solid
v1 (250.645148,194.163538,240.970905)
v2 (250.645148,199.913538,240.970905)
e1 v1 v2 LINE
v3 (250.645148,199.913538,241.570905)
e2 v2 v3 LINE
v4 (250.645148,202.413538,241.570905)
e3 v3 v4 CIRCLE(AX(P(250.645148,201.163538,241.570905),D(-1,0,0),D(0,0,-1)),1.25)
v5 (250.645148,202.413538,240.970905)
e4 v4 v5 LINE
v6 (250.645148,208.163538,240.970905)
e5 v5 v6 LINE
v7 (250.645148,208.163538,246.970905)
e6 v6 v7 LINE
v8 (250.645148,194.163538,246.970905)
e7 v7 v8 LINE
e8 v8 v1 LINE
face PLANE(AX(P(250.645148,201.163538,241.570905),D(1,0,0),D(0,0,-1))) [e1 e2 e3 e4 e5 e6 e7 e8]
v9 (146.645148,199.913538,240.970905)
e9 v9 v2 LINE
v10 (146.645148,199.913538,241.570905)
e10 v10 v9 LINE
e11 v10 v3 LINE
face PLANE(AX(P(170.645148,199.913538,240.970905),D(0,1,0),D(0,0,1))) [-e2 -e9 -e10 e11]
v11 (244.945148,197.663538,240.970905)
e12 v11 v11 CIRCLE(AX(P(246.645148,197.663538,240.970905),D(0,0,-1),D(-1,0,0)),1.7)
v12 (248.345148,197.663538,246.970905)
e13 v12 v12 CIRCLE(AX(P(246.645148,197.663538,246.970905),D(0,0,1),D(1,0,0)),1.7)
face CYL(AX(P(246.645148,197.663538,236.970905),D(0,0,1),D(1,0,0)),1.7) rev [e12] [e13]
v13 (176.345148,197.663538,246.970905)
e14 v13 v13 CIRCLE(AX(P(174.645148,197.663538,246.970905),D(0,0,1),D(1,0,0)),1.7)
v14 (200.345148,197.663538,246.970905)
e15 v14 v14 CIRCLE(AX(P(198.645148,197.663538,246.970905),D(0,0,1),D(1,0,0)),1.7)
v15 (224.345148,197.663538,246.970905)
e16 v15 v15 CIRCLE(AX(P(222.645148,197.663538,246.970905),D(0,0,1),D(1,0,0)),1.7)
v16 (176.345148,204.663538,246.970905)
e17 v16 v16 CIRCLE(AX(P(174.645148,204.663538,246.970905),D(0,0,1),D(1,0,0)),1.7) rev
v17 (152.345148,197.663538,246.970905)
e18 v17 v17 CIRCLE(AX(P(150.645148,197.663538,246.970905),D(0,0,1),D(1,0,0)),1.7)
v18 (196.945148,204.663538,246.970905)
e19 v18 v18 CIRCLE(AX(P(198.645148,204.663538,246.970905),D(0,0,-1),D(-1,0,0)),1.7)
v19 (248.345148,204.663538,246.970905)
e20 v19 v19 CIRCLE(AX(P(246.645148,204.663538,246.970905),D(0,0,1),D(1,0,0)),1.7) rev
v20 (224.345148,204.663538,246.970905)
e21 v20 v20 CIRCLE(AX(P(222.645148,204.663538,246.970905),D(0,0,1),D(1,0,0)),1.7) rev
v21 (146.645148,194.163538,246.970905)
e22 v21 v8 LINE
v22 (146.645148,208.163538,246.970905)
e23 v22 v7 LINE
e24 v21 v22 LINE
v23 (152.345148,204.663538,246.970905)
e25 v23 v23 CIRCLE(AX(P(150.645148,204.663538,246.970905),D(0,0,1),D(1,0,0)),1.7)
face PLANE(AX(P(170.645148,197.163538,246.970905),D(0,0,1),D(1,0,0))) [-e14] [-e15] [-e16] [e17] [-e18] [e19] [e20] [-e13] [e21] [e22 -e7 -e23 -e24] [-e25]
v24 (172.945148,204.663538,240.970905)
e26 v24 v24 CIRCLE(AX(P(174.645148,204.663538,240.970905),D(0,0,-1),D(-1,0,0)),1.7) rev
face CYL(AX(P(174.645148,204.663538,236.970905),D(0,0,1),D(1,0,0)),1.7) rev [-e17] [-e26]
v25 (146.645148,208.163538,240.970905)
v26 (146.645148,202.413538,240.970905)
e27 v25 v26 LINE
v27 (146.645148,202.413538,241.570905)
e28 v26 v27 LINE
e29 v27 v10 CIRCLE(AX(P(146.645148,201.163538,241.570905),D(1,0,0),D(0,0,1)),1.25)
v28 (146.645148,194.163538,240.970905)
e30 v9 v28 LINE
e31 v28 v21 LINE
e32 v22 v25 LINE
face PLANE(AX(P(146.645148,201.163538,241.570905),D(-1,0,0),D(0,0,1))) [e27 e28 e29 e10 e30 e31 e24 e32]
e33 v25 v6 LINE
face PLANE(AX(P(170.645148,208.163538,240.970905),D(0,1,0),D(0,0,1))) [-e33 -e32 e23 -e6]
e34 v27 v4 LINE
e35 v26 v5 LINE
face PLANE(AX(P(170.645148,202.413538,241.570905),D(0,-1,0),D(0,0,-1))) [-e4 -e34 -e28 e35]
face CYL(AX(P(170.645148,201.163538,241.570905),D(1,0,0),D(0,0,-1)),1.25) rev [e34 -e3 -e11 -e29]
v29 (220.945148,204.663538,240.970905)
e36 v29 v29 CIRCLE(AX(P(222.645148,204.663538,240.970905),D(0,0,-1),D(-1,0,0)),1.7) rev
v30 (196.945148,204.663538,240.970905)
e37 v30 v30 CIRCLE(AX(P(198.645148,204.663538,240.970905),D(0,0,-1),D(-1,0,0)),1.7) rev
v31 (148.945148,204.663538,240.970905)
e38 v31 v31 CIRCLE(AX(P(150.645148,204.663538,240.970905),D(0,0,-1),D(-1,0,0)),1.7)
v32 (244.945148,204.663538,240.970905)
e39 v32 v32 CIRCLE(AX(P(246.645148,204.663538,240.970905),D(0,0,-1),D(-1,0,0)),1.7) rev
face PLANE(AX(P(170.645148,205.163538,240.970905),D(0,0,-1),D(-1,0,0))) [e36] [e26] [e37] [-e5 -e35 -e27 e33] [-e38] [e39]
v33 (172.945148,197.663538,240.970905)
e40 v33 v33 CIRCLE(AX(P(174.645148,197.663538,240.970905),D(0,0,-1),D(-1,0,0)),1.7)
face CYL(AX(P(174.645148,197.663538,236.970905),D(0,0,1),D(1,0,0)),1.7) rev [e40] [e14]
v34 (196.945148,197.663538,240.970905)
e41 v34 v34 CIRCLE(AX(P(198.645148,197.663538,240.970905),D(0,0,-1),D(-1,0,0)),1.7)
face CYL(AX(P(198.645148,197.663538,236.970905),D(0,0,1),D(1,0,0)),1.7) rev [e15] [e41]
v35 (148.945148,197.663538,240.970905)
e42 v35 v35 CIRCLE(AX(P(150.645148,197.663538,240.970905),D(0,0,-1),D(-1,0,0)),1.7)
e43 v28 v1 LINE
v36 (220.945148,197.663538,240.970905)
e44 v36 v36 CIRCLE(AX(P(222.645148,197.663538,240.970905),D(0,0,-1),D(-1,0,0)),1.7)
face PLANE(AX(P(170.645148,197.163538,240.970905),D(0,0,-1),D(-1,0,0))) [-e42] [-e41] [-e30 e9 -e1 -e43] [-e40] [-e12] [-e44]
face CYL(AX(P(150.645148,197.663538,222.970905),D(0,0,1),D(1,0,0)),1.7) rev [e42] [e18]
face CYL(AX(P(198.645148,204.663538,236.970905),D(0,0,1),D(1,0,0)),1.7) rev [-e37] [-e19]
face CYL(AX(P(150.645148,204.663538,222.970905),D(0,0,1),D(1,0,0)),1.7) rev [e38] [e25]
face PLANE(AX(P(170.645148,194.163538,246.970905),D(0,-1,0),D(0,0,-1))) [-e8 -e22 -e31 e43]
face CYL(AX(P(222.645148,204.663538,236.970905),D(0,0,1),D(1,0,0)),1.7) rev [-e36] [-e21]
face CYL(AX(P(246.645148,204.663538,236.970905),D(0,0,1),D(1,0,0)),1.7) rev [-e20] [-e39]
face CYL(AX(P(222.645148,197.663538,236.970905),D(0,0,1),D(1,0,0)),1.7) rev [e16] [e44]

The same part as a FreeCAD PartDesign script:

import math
import FreeCAD as App
import Part
import Sketcher

doc = App.newDocument("Part")
body = doc.addObject("PartDesign::Body", "Body")

sketch1 = body.newObject("Sketcher::SketchObject", "Sketch")
sketch1.AttachmentSupport = (doc.getObject("YZ_Plane"), [""])
sketch1.MapMode = "FlatFace"
sketch1.AttachmentOffset = App.Placement(App.Vector(0, 0, 190.645148), App.Rotation())
sketch1.addGeometry([
    Part.LineSegment(App.Vector(208.2, 247, 0), App.Vector(194.2, 247, 0)),
    Part.LineSegment(App.Vector(194.2, 247, 0), App.Vector(194.2, 241, 0)),
    Part.LineSegment(App.Vector(194.2, 241, 0), App.Vector(199.9, 241, 0)),
    Part.LineSegment(App.Vector(199.9, 241, 0), App.Vector(199.9, 241.6, 0)),
    Part.ArcOfCircle(Part.Circle(App.Vector(201.2, 241.6, 0), App.Vector(0, 0, 1), 1.2), math.radians(0), math.radians(180)),
    Part.LineSegment(App.Vector(202.4, 241.6, 0), App.Vector(202.4, 241, 0)),
    Part.LineSegment(App.Vector(202.4, 241, 0), App.Vector(208.2, 241, 0)),
    Part.LineSegment(App.Vector(208.2, 241, 0), App.Vector(208.2, 247, 0)),
], False)
sketch1.addConstraint([
    Sketcher.Constraint("Coincident", 0, 2, 1, 1),
    Sketcher.Constraint("Coincident", 1, 2, 2, 1),
    Sketcher.Constraint("Coincident", 2, 2, 3, 1),
    Sketcher.Constraint("Tangent", 3, 2, 4, 2),
    Sketcher.Constraint("Tangent", 4, 1, 5, 1),
    Sketcher.Constraint("Coincident", 5, 2, 6, 1),
    Sketcher.Constraint("Coincident", 6, 2, 7, 1),
    Sketcher.Constraint("Coincident", 7, 2, 0, 1),
    Sketcher.Constraint("Horizontal", 0),
    Sketcher.Constraint("Vertical", 1),
    Sketcher.Constraint("Horizontal", 2),
    Sketcher.Constraint("Vertical", 3),
    Sketcher.Constraint("Vertical", 5),
    Sketcher.Constraint("Horizontal", 6),
    Sketcher.Constraint("Vertical", 7),
    Sketcher.Constraint("Horizontal", 2, 2, 5, 2),
    Sketcher.Constraint("Equal", 2, 6),
    Sketcher.Constraint("DistanceX", 0, 2, 0, 1, 14.0),
    Sketcher.Constraint("DistanceY", 1, 2, 1, 1, 6.0),
    Sketcher.Constraint("Radius", 4, 1.25),
    Sketcher.Constraint("DistanceY", 3, 1, 3, 2, 0.6),
    Sketcher.Constraint("DistanceX", -1, 1, 4, 3, 201.163538),
    Sketcher.Constraint("DistanceY", -1, 1, 4, 3, 241.570905),
])
pad1 = body.newObject("PartDesign::Pad", "Pad")
pad1.Profile = sketch1
pad1.Type = "TwoLengths"
pad1.Length = 60
pad1.Length2 = 20

sketch2 = body.newObject("Sketcher::SketchObject", "Sketch001")
sketch2.AttachmentSupport = (doc.getObject("XY_Plane"), [""])
sketch2.MapMode = "FlatFace"
sketch2.AttachmentOffset = App.Placement(App.Vector(0, 0, 246.970905), App.Rotation())
sketch2.addGeometry([
    Part.Circle(App.Vector(246.6, 197.7, 0), App.Vector(0, 0, 1), 1.7),
    Part.Circle(App.Vector(198.6, 197.7, 0), App.Vector(0, 0, 1), 1.7),
    Part.Circle(App.Vector(174.6, 197.7, 0), App.Vector(0, 0, 1), 1.7),
    Part.Circle(App.Vector(222.6, 197.7, 0), App.Vector(0, 0, 1), 1.7),
    Part.Circle(App.Vector(174.6, 204.7, 0), App.Vector(0, 0, 1), 1.7),
    Part.Circle(App.Vector(198.6, 204.7, 0), App.Vector(0, 0, 1), 1.7),
    Part.Circle(App.Vector(222.6, 204.7, 0), App.Vector(0, 0, 1), 1.7),
    Part.Circle(App.Vector(246.6, 204.7, 0), App.Vector(0, 0, 1), 1.7),
], False)
sketch2.addConstraint([
    Sketcher.Constraint("Equal", 0, 1),
    Sketcher.Constraint("Equal", 1, 2),
    Sketcher.Constraint("Equal", 2, 3),
    Sketcher.Constraint("Equal", 3, 4),
    Sketcher.Constraint("Equal", 4, 5),
    Sketcher.Constraint("Equal", 5, 6),
    Sketcher.Constraint("Equal", 6, 7),
    Sketcher.Constraint("Horizontal", 0, 3, 1, 3),
    Sketcher.Constraint("Horizontal", 1, 3, 2, 3),
    Sketcher.Constraint("Horizontal", 2, 3, 3, 3),
    Sketcher.Constraint("Horizontal", 4, 3, 5, 3),
    Sketcher.Constraint("Horizontal", 5, 3, 6, 3),
    Sketcher.Constraint("Horizontal", 6, 3, 7, 3),
    Sketcher.Constraint("Vertical", 2, 3, 4, 3),
    Sketcher.Constraint("Vertical", 1, 3, 5, 3),
    Sketcher.Constraint("Vertical", 3, 3, 6, 3),
    Sketcher.Constraint("Vertical", 0, 3, 7, 3),
    Sketcher.Constraint("Diameter", 0, 3.4),
    Sketcher.Constraint("DistanceX", 1, 3, 0, 3, 48.0),
    Sketcher.Constraint("DistanceX", 2, 3, 1, 3, 24.0),
    Sketcher.Constraint("DistanceX", 3, 3, 0, 3, 24.0),
    Sketcher.Constraint("DistanceY", 2, 3, 4, 3, 7.0),
    Sketcher.Constraint("DistanceX", -1, 1, 0, 3, 246.645148),
    Sketcher.Constraint("DistanceY", -1, 1, 0, 3, 197.663538),
])
pocket1 = body.newObject("PartDesign::Pocket", "Pocket")
pocket1.Profile = sketch2
pocket1.Length = 10

sketch3 = body.newObject("Sketcher::SketchObject", "Sketch002")
sketch3.AttachmentSupport = (doc.getObject("YZ_Plane"), [""])
sketch3.MapMode = "FlatFace"
sketch3.AttachmentOffset = App.Placement(App.Vector(0, 0, 146.645148), App.Rotation())
sketch3.addGeometry([
    Part.LineSegment(App.Vector(208.2, 247, 0), App.Vector(208.2, 241, 0)),
    Part.LineSegment(App.Vector(208.2, 241, 0), App.Vector(202.4, 241, 0)),
    Part.LineSegment(App.Vector(202.4, 241, 0), App.Vector(202.4, 241.6, 0)),
    Part.ArcOfCircle(Part.Circle(App.Vector(201.2, 241.6, 0), App.Vector(0, 0, 1), 1.2), math.radians(0), math.radians(180)),
    Part.LineSegment(App.Vector(199.9, 241.6, 0), App.Vector(199.9, 241, 0)),
    Part.LineSegment(App.Vector(199.9, 241, 0), App.Vector(194.2, 241, 0)),
    Part.LineSegment(App.Vector(194.2, 241, 0), App.Vector(194.2, 247, 0)),
    Part.LineSegment(App.Vector(194.2, 247, 0), App.Vector(208.2, 247, 0)),
], False)
sketch3.addConstraint([
    Sketcher.Constraint("Coincident", 0, 2, 1, 1),
    Sketcher.Constraint("Coincident", 1, 2, 2, 1),
    Sketcher.Constraint("Tangent", 2, 2, 3, 1),
    Sketcher.Constraint("Tangent", 3, 2, 4, 1),
    Sketcher.Constraint("Coincident", 4, 2, 5, 1),
    Sketcher.Constraint("Coincident", 5, 2, 6, 1),
    Sketcher.Constraint("Coincident", 6, 2, 7, 1),
    Sketcher.Constraint("Coincident", 7, 2, 0, 1),
    Sketcher.Constraint("Vertical", 0),
    Sketcher.Constraint("Horizontal", 1),
    Sketcher.Constraint("Vertical", 2),
    Sketcher.Constraint("Vertical", 4),
    Sketcher.Constraint("Horizontal", 5),
    Sketcher.Constraint("Vertical", 6),
    Sketcher.Constraint("Horizontal", 7),
    Sketcher.Constraint("Horizontal", 1, 2, 4, 2),
    Sketcher.Constraint("Equal", 1, 5),
    Sketcher.Constraint("DistanceX", 7, 1, 7, 2, 14.0),
    Sketcher.Constraint("DistanceY", 0, 2, 0, 1, 6.0),
    Sketcher.Constraint("Radius", 3, 1.25),
    Sketcher.Constraint("DistanceY", 2, 1, 2, 2, 0.6),
    Sketcher.Constraint("DistanceX", -1, 1, 3, 3, 201.163538),
    Sketcher.Constraint("DistanceY", -1, 1, 3, 3, 241.570905),
])
pad2 = body.newObject("PartDesign::Pad", "Pad001")
pad2.Profile = sketch3
pad2.Length = 24

sketch4 = body.newObject("Sketcher::SketchObject", "Sketch003")
sketch4.AttachmentSupport = (doc.getObject("XY_Plane"), [""])
sketch4.MapMode = "FlatFace"
sketch4.AttachmentOffset = App.Placement(App.Vector(0, 0, 246.970905), App.Rotation())
sketch4.addGeometry([
    Part.Circle(App.Vector(150.6, 197.7, 0), App.Vector(0, 0, 1), 1.7),
    Part.Circle(App.Vector(150.6, 204.7, 0), App.Vector(0, 0, 1), 1.7),
], False)
sketch4.addConstraint([
    Sketcher.Constraint("Equal", 0, 1),
    Sketcher.Constraint("Vertical", 0, 3, 1, 3),
    Sketcher.Constraint("Diameter", 0, 3.4),
    Sketcher.Constraint("DistanceY", 0, 3, 1, 3, 7.0),
    Sketcher.Constraint("DistanceX", -1, 1, 0, 3, 150.645148),
    Sketcher.Constraint("DistanceY", -1, 1, 0, 3, 197.663538),
])
pocket2 = body.newObject("PartDesign::Pocket", "Pocket001")
pocket2.Profile = sketch4
pocket2.Length = 24

doc.recompute()
